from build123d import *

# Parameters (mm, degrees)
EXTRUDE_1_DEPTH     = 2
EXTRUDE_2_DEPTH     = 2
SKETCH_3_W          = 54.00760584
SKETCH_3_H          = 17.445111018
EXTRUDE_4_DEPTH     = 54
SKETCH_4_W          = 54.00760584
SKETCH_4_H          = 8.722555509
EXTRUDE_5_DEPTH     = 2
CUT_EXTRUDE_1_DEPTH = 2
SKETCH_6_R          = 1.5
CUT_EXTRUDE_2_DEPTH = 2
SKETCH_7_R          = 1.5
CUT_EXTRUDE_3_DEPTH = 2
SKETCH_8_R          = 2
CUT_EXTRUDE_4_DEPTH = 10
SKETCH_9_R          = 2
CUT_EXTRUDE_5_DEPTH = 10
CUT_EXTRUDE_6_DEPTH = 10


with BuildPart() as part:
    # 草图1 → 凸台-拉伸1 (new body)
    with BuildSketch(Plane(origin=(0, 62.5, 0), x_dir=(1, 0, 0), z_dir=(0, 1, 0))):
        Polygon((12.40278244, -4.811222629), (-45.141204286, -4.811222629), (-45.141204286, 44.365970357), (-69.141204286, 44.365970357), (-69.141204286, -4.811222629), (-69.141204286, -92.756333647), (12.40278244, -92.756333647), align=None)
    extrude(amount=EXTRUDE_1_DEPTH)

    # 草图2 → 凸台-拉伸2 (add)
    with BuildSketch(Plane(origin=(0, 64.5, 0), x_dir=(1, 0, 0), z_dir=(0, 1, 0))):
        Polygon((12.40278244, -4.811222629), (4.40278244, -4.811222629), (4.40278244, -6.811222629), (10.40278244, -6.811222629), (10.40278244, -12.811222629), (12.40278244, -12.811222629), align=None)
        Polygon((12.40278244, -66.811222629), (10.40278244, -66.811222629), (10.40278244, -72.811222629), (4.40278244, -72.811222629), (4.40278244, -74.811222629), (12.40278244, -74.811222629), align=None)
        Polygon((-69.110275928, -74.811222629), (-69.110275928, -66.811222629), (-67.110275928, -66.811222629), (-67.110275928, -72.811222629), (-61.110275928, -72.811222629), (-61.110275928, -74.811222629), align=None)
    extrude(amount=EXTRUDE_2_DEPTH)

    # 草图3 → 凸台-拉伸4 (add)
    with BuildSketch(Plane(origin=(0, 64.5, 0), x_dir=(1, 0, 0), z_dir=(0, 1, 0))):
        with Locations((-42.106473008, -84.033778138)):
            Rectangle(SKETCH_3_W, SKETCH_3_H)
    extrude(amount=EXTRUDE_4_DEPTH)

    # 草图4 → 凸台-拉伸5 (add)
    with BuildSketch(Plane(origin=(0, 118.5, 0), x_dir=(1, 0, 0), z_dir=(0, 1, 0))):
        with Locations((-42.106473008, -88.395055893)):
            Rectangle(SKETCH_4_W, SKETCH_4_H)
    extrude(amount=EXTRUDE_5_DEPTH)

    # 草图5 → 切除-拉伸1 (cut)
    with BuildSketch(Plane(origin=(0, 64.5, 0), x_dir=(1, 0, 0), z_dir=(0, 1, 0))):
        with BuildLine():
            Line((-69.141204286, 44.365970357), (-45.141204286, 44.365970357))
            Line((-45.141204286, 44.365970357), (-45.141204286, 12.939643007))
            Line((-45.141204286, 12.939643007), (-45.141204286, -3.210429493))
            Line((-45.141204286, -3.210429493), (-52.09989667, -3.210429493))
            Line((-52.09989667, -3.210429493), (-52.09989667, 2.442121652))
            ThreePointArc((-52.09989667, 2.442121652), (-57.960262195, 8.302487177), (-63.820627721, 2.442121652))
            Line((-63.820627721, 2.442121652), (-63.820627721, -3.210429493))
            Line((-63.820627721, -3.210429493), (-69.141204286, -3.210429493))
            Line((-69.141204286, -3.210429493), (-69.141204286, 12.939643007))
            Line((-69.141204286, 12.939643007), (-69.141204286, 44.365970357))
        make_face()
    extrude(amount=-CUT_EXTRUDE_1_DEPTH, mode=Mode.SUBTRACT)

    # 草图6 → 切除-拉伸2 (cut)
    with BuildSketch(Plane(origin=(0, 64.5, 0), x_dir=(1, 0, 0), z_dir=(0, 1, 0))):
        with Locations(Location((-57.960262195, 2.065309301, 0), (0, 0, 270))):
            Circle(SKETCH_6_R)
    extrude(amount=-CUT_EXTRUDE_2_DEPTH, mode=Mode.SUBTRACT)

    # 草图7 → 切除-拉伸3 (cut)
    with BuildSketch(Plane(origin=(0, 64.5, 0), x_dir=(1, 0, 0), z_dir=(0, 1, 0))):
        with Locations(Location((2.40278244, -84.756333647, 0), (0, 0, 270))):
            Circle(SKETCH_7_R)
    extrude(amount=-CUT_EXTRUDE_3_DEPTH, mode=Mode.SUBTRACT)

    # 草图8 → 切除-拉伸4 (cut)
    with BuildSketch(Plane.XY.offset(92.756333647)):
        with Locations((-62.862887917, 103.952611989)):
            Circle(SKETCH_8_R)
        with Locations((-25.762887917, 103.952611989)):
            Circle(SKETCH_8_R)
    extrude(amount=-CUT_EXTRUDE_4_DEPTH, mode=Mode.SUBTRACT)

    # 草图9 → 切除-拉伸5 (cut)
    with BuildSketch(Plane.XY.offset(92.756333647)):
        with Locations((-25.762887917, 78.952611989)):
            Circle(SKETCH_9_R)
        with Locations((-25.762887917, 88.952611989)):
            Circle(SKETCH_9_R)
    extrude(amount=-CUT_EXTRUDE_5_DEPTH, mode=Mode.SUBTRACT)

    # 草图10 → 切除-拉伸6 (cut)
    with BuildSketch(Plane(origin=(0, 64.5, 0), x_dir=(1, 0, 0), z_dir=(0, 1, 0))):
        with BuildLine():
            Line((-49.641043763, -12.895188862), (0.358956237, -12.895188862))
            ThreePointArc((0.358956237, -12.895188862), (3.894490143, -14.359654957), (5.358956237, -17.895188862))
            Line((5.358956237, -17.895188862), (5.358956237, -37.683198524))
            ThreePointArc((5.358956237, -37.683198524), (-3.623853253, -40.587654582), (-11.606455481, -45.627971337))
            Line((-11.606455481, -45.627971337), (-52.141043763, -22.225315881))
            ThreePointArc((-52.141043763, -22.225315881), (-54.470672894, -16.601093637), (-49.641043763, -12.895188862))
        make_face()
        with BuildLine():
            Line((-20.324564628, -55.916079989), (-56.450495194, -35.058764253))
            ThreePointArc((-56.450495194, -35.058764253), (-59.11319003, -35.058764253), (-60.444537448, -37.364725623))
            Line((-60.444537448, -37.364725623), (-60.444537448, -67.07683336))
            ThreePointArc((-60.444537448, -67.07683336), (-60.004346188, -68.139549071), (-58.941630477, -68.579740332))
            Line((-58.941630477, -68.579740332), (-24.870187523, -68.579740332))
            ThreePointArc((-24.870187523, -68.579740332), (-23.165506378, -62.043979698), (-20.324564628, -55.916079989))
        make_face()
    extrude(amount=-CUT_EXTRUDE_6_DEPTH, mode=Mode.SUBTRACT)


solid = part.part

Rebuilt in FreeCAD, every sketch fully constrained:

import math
import FreeCAD as App
import Part
import Sketcher
Q = App.Units.Quantity

doc = App.newDocument("Part")
body = doc.addObject("PartDesign::Body", "Body")

# Sketch on XZ plane
sketch1 = doc.addObject("Sketcher::SketchObject", "Sketch")
body.addObject(sketch1)
sketch1.AttachmentSupport = (doc.XZ_Plane, [""])
sketch1.MapMode = "FlatFace"
sketch1.AttachmentOffset = App.Placement(App.Vector(0, 0, -62.5), App.Rotation())
sketch1.addGeometry([
    Part.LineSegment(App.Vector(12.402782, 4.811223, 0), App.Vector(-45.141204, 4.811223, 0)),  # 0
    Part.LineSegment(App.Vector(-45.141204, 4.811223, 0), App.Vector(-45.141204, -44.36597, 0)),  # 1
    Part.LineSegment(App.Vector(-45.141204, -44.36597, 0), App.Vector(-69.141204, -44.36597, 0)),  # 2
    Part.LineSegment(App.Vector(-69.141204, -44.36597, 0), App.Vector(-69.141204, 92.756334, 0)),  # 3
    Part.LineSegment(App.Vector(-69.141204, 92.756334, 0), App.Vector(12.402782, 92.756334, 0)),  # 4
    Part.LineSegment(App.Vector(12.402782, 92.756334, 0), App.Vector(12.402782, 4.811223, 0)),  # 5
], False)
sketch1.addConstraint([
    Sketcher.Constraint("Coincident", 0, 2, 1, 1),
    Sketcher.Constraint("Coincident", 1, 2, 2, 1),
    Sketcher.Constraint("Coincident", 2, 2, 3, 1),
    Sketcher.Constraint("Coincident", 3, 2, 4, 1),
    Sketcher.Constraint("Coincident", 4, 2, 5, 1),
    Sketcher.Constraint("Coincident", 5, 2, 0, 1),
    Sketcher.Constraint("Horizontal", 0),
    Sketcher.Constraint("Vertical", 1),
    Sketcher.Constraint("Horizontal", 2),
    Sketcher.Constraint("Vertical", 3),
    Sketcher.Constraint("Horizontal", 4),
    Sketcher.Constraint("Vertical", 5),
    Sketcher.Constraint("DistanceX", 2, 2, 2, 1, 24.0),
    Sketcher.Constraint("DistanceY", 5, 2, 5, 1, 87.945111),
    Sketcher.Constraint("DistanceX", 0, 2, 0, 1, 57.543987),
    Sketcher.Constraint("DistanceY", 1, 2, 1, 1, 49.177193),
    Sketcher.Constraint("DistanceY", 1, 2, -1, 1, 44.36597),
    Sketcher.Constraint("DistanceX", 0, 2, -1, 1, 45.141204),
])
pad1 = doc.addObject("PartDesign::Pad", "Pad")
body.addObject(pad1)
pad1.Profile = sketch1
pad1.Length = 2
pad1.Reversed = True

# Sketch on XZ plane
sketch2 = doc.addObject("Sketcher::SketchObject", "Sketch001")
body.addObject(sketch2)
sketch2.AttachmentSupport = (doc.XZ_Plane, [""])
sketch2.MapMode = "FlatFace"
sketch2.AttachmentOffset = App.Placement(App.Vector(0, 0, -64.5), App.Rotation())
sketch2.addGeometry([
    Part.LineSegment(App.Vector(12.402782, 4.811223, 0), App.Vector(4.402782, 4.811223, 0)),  # 0
    Part.LineSegment(App.Vector(4.402782, 4.811223, 0), App.Vector(4.402782, 6.811223, 0)),  # 1
    Part.LineSegment(App.Vector(4.402782, 6.811223, 0), App.Vector(10.402782, 6.811223, 0)),  # 2
    Part.LineSegment(App.Vector(10.402782, 6.811223, 0), App.Vector(10.402782, 12.811223, 0)),  # 3
    Part.LineSegment(App.Vector(10.402782, 12.811223, 0), App.Vector(12.402782, 12.811223, 0)),  # 4
    Part.LineSegment(App.Vector(12.402782, 12.811223, 0), App.Vector(12.402782, 4.811223, 0)),  # 5
    Part.LineSegment(App.Vector(12.402782, 66.811223, 0), App.Vector(10.402782, 66.811223, 0)),  # 6
    Part.LineSegment(App.Vector(10.402782, 66.811223, 0), App.Vector(10.402782, 72.811223, 0)),  # 7
    Part.LineSegment(App.Vector(10.402782, 72.811223, 0), App.Vector(4.402782, 72.811223, 0)),  # 8
    Part.LineSegment(App.Vector(4.402782, 72.811223, 0), App.Vector(4.402782, 74.811223, 0)),  # 9
    Part.LineSegment(App.Vector(4.402782, 74.811223, 0), App.Vector(12.402782, 74.811223, 0)),  # 10
    Part.LineSegment(App.Vector(12.402782, 74.811223, 0), App.Vector(12.402782, 66.811223, 0)),  # 11
    Part.LineSegment(App.Vector(-69.110276, 66.811223, 0), App.Vector(-69.110276, 74.811223, 0)),  # 12
    Part.LineSegment(App.Vector(-69.110276, 74.811223, 0), App.Vector(-61.110276, 74.811223, 0)),  # 13
    Part.LineSegment(App.Vector(-61.110276, 74.811223, 0), App.Vector(-61.110276, 72.811223, 0)),  # 14
    Part.LineSegment(App.Vector(-61.110276, 72.811223, 0), App.Vector(-67.110276, 72.811223, 0)),  # 15
    Part.LineSegment(App.Vector(-67.110276, 72.811223, 0), App.Vector(-67.110276, 66.811223, 0)),  # 16
    Part.LineSegment(App.Vector(-67.110276, 66.811223, 0), App.Vector(-69.110276, 66.811223, 0)),  # 17
], False)
sketch2.addConstraint([
    Sketcher.Constraint("Coincident", 0, 2, 1, 1),
    Sketcher.Constraint("Coincident", 1, 2, 2, 1),
    Sketcher.Constraint("Coincident", 2, 2, 3, 1),
    Sketcher.Constraint("Coincident", 3, 2, 4, 1),
    Sketcher.Constraint("Coincident", 4, 2, 5, 1),
    Sketcher.Constraint("Coincident", 5, 2, 0, 1),
    Sketcher.Constraint("Coincident", 6, 2, 7, 1),
    Sketcher.Constraint("Coincident", 7, 2, 8, 1),
    Sketcher.Constraint("Coincident", 8, 2, 9, 1),
    Sketcher.Constraint("Coincident", 9, 2, 10, 1),
    Sketcher.Constraint("Coincident", 10, 2, 11, 1),
    Sketcher.Constraint("Coincident", 11, 2, 6, 1),
    Sketcher.Constraint("Coincident", 12, 2, 13, 1),
    Sketcher.Constraint("Coincident", 13, 2, 14, 1),
    Sketcher.Constraint("Coincident", 14, 2, 15, 1),
    Sketcher.Constraint("Coincident", 15, 2, 16, 1),
    Sketcher.Constraint("Coincident", 16, 2, 17, 1),
    Sketcher.Constraint("Coincident", 17, 2, 12, 1),
    Sketcher.Constraint("Horizontal", 0),
    Sketcher.Constraint("Vertical", 1),
    Sketcher.Constraint("Horizontal", 2),
    Sketcher.Constraint("Vertical", 3),
    Sketcher.Constraint("Horizontal", 4),
    Sketcher.Constraint("Vertical", 5),
    Sketcher.Constraint("Horizontal", 6),
    Sketcher.Constraint("Vertical", 7),
    Sketcher.Constraint("Horizontal", 8),
    Sketcher.Constraint("Vertical", 9),
    Sketcher.Constraint("Horizontal", 10),
    Sketcher.Constraint("Vertical", 11),
    Sketcher.Constraint("Vertical", 12),
    Sketcher.Constraint("Horizontal", 13),
    Sketcher.Constraint("Vertical", 14),
    Sketcher.Constraint("Horizontal", 15),
    Sketcher.Constraint("Vertical", 16),
    Sketcher.Constraint("Horizontal", 17),
    Sketcher.Constraint("Horizontal", 10, 2, 12, 2),
    Sketcher.Constraint("Horizontal", 8, 2, 14, 2),
    Sketcher.Constraint("Horizontal", 11, 2, 16, 2),
    Sketcher.Constraint("Vertical", 3, 2, 6, 2),
    Sketcher.Constraint("Vertical", 1, 2, 8, 2),
    Sketcher.Constraint("Vertical", 5, 2, 10, 2),
    Sketcher.Constraint("Equal", 10, 13),
    Sketcher.Constraint("Equal", 8, 15),
    Sketcher.Constraint("Equal", 17, 1),
    Sketcher.Constraint("Equal", 15, 3),
    Sketcher.Constraint("Equal", 3, 7),
    Sketcher.Constraint("Equal", 1, 9),
    Sketcher.Constraint("DistanceX", 0, 2, 0, 1, 8.0),
    Sketcher.Constraint("DistanceX", 2, 1, 2, 2, 6.0),
    Sketcher.Constraint("DistanceY", 3, 2, 6, 2, 54.0),
    Sketcher.Constraint("DistanceX", 12, 2, 9, 2, 73.513058),
    Sketcher.Constraint("DistanceX", -1, 1, 0, 2, 4.402782),
    Sketcher.Constraint("DistanceY", -1, 1, 0, 2, 4.811223),
])
pad2 = doc.addObject("PartDesign::Pad", "Pad001")
body.addObject(pad2)
pad2.Profile = sketch2
pad2.Length = 2
pad2.Reversed = True

# Sketch on XZ plane
sketch3 = doc.addObject("Sketcher::SketchObject", "Sketch002")
body.addObject(sketch3)
sketch3.AttachmentSupport = (doc.XZ_Plane, [""])
sketch3.MapMode = "FlatFace"
sketch3.AttachmentOffset = App.Placement(App.Vector(0, 0, -64.5), App.Rotation())
sketch3.addGeometry([
    Part.LineSegment(App.Vector(-69.110276, 75.311223, 0), App.Vector(-69.110276, 92.756334, 0)),
    Part.LineSegment(App.Vector(-69.110276, 92.756334, 0), App.Vector(-15.10267, 92.756334, 0)),
    Part.LineSegment(App.Vector(-15.10267, 92.756334, 0), App.Vector(-15.10267, 75.311223, 0)),
    Part.LineSegment(App.Vector(-15.10267, 75.311223, 0), App.Vector(-69.110276, 75.311223, 0)),
], False)
sketch3.addConstraint([
    Sketcher.Constraint("Coincident", 0, 2, 1, 1),
    Sketcher.Constraint("Coincident", 1, 2, 2, 1),
    Sketcher.Constraint("Coincident", 2, 2, 3, 1),
    Sketcher.Constraint("Coincident", 3, 2, 0, 1),
    Sketcher.Constraint("Vertical", 0),
    Sketcher.Constraint("Horizontal", 1),
    Sketcher.Constraint("Vertical", 2),
    Sketcher.Constraint("Horizontal", 3),
    Sketcher.Constraint("DistanceY", 0, 1, 0, 2, 17.445111),
    Sketcher.Constraint("DistanceX", 1, 1, 1, 2, 54.007606),
    Sketcher.Constraint("DistanceX", 1, 2, -1, 1, 15.10267),
    Sketcher.Constraint("DistanceY", -1, 1, 0, 2, 92.756334),
])
pad3 = doc.addObject("PartDesign::Pad", "Pad002")
body.addObject(pad3)
pad3.Profile = sketch3
pad3.Length = 54
pad3.Reversed = True

# Sketch on XZ plane
sketch4 = doc.addObject("Sketcher::SketchObject", "Sketch003")
body.addObject(sketch4)
sketch4.AttachmentSupport = (doc.XZ_Plane, [""])
sketch4.MapMode = "FlatFace"
sketch4.AttachmentOffset = App.Placement(App.Vector(0, 0, -118.5), App.Rotation())
sketch4.addGeometry([
    Part.LineSegment(App.Vector(-69.110276, 84.033778, 0), App.Vector(-69.110276, 92.756334, 0)),
    Part.LineSegment(App.Vector(-69.110276, 92.756334, 0), App.Vector(-15.10267, 92.756334, 0)),
    Part.LineSegment(App.Vector(-15.10267, 92.756334, 0), App.Vector(-15.10267, 84.033778, 0)),
    Part.LineSegment(App.Vector(-15.10267, 84.033778, 0), App.Vector(-69.110276, 84.033778, 0)),
], False)
sketch4.addConstraint([
    Sketcher.Constraint("Coincident", 0, 2, 1, 1),
    Sketcher.Constraint("Coincident", 1, 2, 2, 1),
    Sketcher.Constraint("Coincident", 2, 2, 3, 1),
    Sketcher.Constraint("Coincident", 3, 2, 0, 1),
    Sketcher.Constraint("Vertical", 0),
    Sketcher.Constraint("Horizontal", 1),
    Sketcher.Constraint("Vertical", 2),
    Sketcher.Constraint("Horizontal", 3),
    Sketcher.Constraint("DistanceX", 1, 1, 1, 2, 54.007606),
    Sketcher.Constraint("DistanceY", 0, 1, 0, 2, 8.722556),
    Sketcher.Constraint("DistanceX", 1, 2, -1, 1, 15.10267),
    Sketcher.Constraint("DistanceY", -1, 1, 2, 2, 84.033778),
])
pad4 = doc.addObject("PartDesign::Pad", "Pad003")
body.addObject(pad4)
pad4.Profile = sketch4
pad4.Length = 2
pad4.Reversed = True

# Sketch on XZ plane
sketch5 = doc.addObject("Sketcher::SketchObject", "Sketch004")
body.addObject(sketch5)
sketch5.AttachmentSupport = (doc.XZ_Plane, [""])
sketch5.MapMode = "FlatFace"
sketch5.AttachmentOffset = App.Placement(App.Vector(0, 0, -64.5), App.Rotation())
sketch5.addGeometry([
    Part.LineSegment(App.Vector(-45.141204, -44.36597, 0), App.Vector(-69.141204, -44.36597, 0)),  # 0
    Part.LineSegment(App.Vector(-69.141204, -44.36597, 0), App.Vector(-69.141204, 3.210429, 0)),  # 1
    Part.LineSegment(App.Vector(-69.141204, 3.210429, 0), App.Vector(-63.820628, 3.210429, 0)),  # 2
    Part.LineSegment(App.Vector(-63.820628, 3.210429, 0), App.Vector(-63.820628, -2.442122, 0)),  # 3
    Part.ArcOfCircle(Part.Circle(App.Vector(-57.960262, -2.442122, 0), App.Vector(0, 0, 1), 5.860366), math.radians(-180), math.radians(0)),  # 4
    Part.LineSegment(App.Vector(-52.099897, -2.442122, 0), App.Vector(-52.099897, 3.210429, 0)),  # 5
    Part.LineSegment(App.Vector(-52.099897, 3.210429, 0), App.Vector(-45.141204, 3.210429, 0)),  # 6
    Part.LineSegment(App.Vector(-45.141204, 3.210429, 0), App.Vector(-45.141204, -44.36597, 0)),  # 7
], False)
sketch5.addConstraint([
    Sketcher.Constraint("Coincident", 0, 2, 1, 1),
    Sketcher.Constraint("Coincident", 1, 2, 2, 1),
    Sketcher.Constraint("Coincident", 2, 2, 3, 1),
    Sketcher.Constraint("Tangent", 3, 2, 4, 1),
    Sketcher.Constraint("Tangent", 4, 2, 5, 1),
    Sketcher.Constraint("Coincident", 5, 2, 6, 1),
    Sketcher.Constraint("Coincident", 6, 2, 7, 1),
    Sketcher.Constraint("Coincident", 7, 2, 0, 1),
    Sketcher.Constraint("Horizontal", 0),
    Sketcher.Constraint("Vertical", 1),
    Sketcher.Constraint("Horizontal", 2),
    Sketcher.Constraint("Vertical", 3),
    Sketcher.Constraint("Vertical", 5),
    Sketcher.Constraint("Horizontal", 6),
    Sketcher.Constraint("Vertical", 7),
    Sketcher.Constraint("Horizontal", 2, 2, 5, 2),
    Sketcher.Constraint("DistanceX", 0, 2, 0, 1, 24.0),
    Sketcher.Constraint("DistanceY", 1, 1, 1, 2, 47.5764),
    Sketcher.Constraint("Radius", 4, 5.860366),
    Sketcher.Constraint("DistanceY", 3, 2, 3, 1, 5.652551),
    Sketcher.Constraint("DistanceX", 2, 1, 2, 2, 5.320577),
    Sketcher.Constraint("DistanceY", 4, 3, -1, 1, 2.442122),
    Sketcher.Constraint("DistanceX", 4, 3, -1, 1, 57.960262),
])
pocket1 = doc.addObject("PartDesign::Pocket", "Pocket")
body.addObject(pocket1)
pocket1.Profile = sketch5
pocket1.Length = 2
pocket1.Reversed = True

# Sketch on XZ plane
sketch6 = doc.addObject("Sketcher::SketchObject", "Sketch005")
body.addObject(sketch6)
sketch6.AttachmentSupport = (doc.XZ_Plane, [""])
sketch6.MapMode = "FlatFace"
sketch6.AttachmentOffset = App.Placement(App.Vector(0, 0, -64.5), App.Rotation())
sketch6.addGeometry(Part.Circle(App.Vector(-57.960262, -2.065309, 0), App.Vector(0, 0, 1), 1.5), False)
sketch6.addConstraint([
    Sketcher.Constraint("Diameter", 0, 3.0),
    Sketcher.Constraint("DistanceY", 0, 3, -1, 1, 2.065309),
    Sketcher.Constraint("DistanceX", 0, 3, -1, 1, 57.960262),
])
pocket2 = doc.addObject("PartDesign::Pocket", "Pocket001")
body.addObject(pocket2)
pocket2.Profile = sketch6
pocket2.Length = 2
pocket2.Reversed = True

# Sketch on XZ plane
sketch7 = doc.addObject("Sketcher::SketchObject", "Sketch006")
body.addObject(sketch7)
sketch7.AttachmentSupport = (doc.XZ_Plane, [""])
sketch7.MapMode = "FlatFace"
sketch7.AttachmentOffset = App.Placement(App.Vector(0, 0, -64.5), App.Rotation())
sketch7.addGeometry(Part.Circle(App.Vector(2.402782, 84.756334, 0), App.Vector(0, 0, 1), 1.5), False)
sketch7.addConstraint([
    Sketcher.Constraint("Diameter", 0, 3.0),
    Sketcher.Constraint("DistanceX", -1, 1, 0, 3, 2.402782),
    Sketcher.Constraint("DistanceY", -1, 1, 0, 3, 84.756334),
])
pocket3 = doc.addObject("PartDesign::Pocket", "Pocket002")
body.addObject(pocket3)
pocket3.Profile = sketch7
pocket3.Length = 2
pocket3.Reversed = True

# Sketch on XY plane
sketch8 = doc.addObject("Sketcher::SketchObject", "Sketch007")
body.addObject(sketch8)
sketch8.AttachmentSupport = (doc.XY_Plane, [""])
sketch8.MapMode = "FlatFace"
sketch8.AttachmentOffset = App.Placement(App.Vector(0, 0, 92.756334), App.Rotation())
sketch8.addGeometry([
    Part.Circle(App.Vector(-62.862888, 103.952612, 0), App.Vector(0, 0, 1), 2),
    Part.Circle(App.Vector(-25.762888, 103.952612, 0), App.Vector(0, 0, 1), 2),
], False)
sketch8.addConstraint([
    Sketcher.Constraint("Equal", 0, 1),
    Sketcher.Constraint("Horizontal", 0, 3, 1, 3),
    Sketcher.Constraint("Diameter", 0, 4.0),
    Sketcher.Constraint("DistanceX", 0, 3, 1, 3, 37.1),
    Sketcher.Constraint("DistanceY", -1, 1, 0, 3, 103.952612),
    Sketcher.Constraint("DistanceX", 0, 3, -1, 1, 62.862888),
])
pocket4 = doc.addObject("PartDesign::Pocket", "Pocket003")
body.addObject(pocket4)
pocket4.Profile = sketch8
pocket4.Length = 10

# Sketch on XY plane
sketch9 = doc.addObject("Sketcher::SketchObject", "Sketch008")
body.addObject(sketch9)
sketch9.AttachmentSupport = (doc.XY_Plane, [""])
sketch9.MapMode = "FlatFace"
sketch9.AttachmentOffset = App.Placement(App.Vector(0, 0, 92.756334), App.Rotation())
sketch9.addGeometry([
    Part.Circle(App.Vector(-25.762888, 78.952612, 0), App.Vector(0, 0, 1), 2),
    Part.Circle(App.Vector(-25.762888, 88.952612, 0), App.Vector(0, 0, 1), 2),
], False)
sketch9.addConstraint([
    Sketcher.Constraint("Equal", 0, 1),
    Sketcher.Constraint("Vertical", 0, 3, 1, 3),
    Sketcher.Constraint("Diameter", 0, 4.0),
    Sketcher.Constraint("DistanceY", 0, 3, 1, 3, 10.0),
    Sketcher.Constraint("DistanceY", -1, 1, 0, 3, 78.952612),
    Sketcher.Constraint("DistanceX", 0, 3, -1, 1, 25.762888),
])
pocket5 = doc.addObject("PartDesign::Pocket", "Pocket004")
body.addObject(pocket5)
pocket5.Profile = sketch9
pocket5.Length = 10

# Sketch on XZ plane
sketch10 = doc.addObject("Sketcher::SketchObject", "Sketch009")
body.addObject(sketch10)
sketch10.AttachmentSupport = (doc.XZ_Plane, [""])
sketch10.MapMode = "FlatFace"
sketch10.AttachmentOffset = App.Placement(App.Vector(0, 0, -64.5), App.Rotation())
sketch10.addGeometry([
    Part.LineSegment(App.Vector(0.358956, 12.895189, 0), App.Vector(-49.641044, 12.895189, 0)),  # 0
    Part.ArcOfCircle(Part.Circle(App.Vector(-49.641044, 17.895189, 0), App.Vector(0, 0, 1), 5), math.radians(120), math.radians(270)),  # 1
    Part.LineSegment(App.Vector(-52.141044, 22.225316, 0), App.Vector(-11.606455, 45.627971, 0)),  # 2
    Part.ArcOfCircle(Part.Circle(App.Vector(12.402782, 74.811223, 0), App.Vector(0, 0, 1), 37.790285), math.radians(-129.444339), math.radians(-100.74233)),  # 3
    Part.LineSegment(App.Vector(5.358956, 37.683199, 0), App.Vector(5.358956, 17.895189, 0)),  # 4
    Part.ArcOfCircle(Part.Circle(App.Vector(0.358956, 17.895189, 0), App.Vector(0, 0, 1), 5), math.radians(-90), math.radians(0)),  # 5
    Part.LineSegment(App.Vector(-20.324565, 55.91608, 0), App.Vector(-56.450495, 35.058764, 0)),  # 6
    Part.ArcOfCircle(Part.Circle(App.Vector(-57.781843, 37.364726, 0), App.Vector(0, 0, 1), 2.662695), math.radians(-180), math.radians(-60)),  # 7
    Part.LineSegment(App.Vector(-60.444537, 37.364726, 0), App.Vector(-60.444537, 67.076833, 0)),  # 8
    Part.ArcOfCircle(Part.Circle(App.Vector(-58.94163, 67.076833, 0), App.Vector(0, 0, 1), 1.502907), math.radians(90), math.radians(180)),  # 9
    Part.LineSegment(App.Vector(-58.94163, 68.57974, 0), App.Vector(-24.870188, 68.57974, 0)),  # 10
    Part.ArcOfCircle(Part.Circle(App.Vector(12.402782, 74.811223, 0), App.Vector(0, 0, 1), 37.790285), math.radians(-170.508783), math.radians(-150)),  # 11
], False)
sketch10.addConstraint([
    Sketcher.Constraint("Tangent", 0, 2, 1, 2),
    Sketcher.Constraint("Tangent", 1, 1, 2, 1),
    Sketcher.Constraint("Coincident", 2, 2, 3, 1),
    Sketcher.Constraint("Coincident", 3, 2, 4, 1),
    Sketcher.Constraint("Tangent", 4, 2, 5, 2),
    Sketcher.Constraint("Tangent", 5, 1, 0, 1),
    Sketcher.Constraint("Tangent", 6, 2, 7, 2),
    Sketcher.Constraint("Tangent", 7, 1, 8, 1),
    Sketcher.Constraint("Tangent", 8, 2, 9, 2),
    Sketcher.Constraint("Tangent", 9, 1, 10, 1),
    Sketcher.Constraint("Coincident", 10, 2, 11, 1),
    Sketcher.Constraint("Coincident", 11, 2, 6, 1),
    Sketcher.Constraint("Horizontal", 0),
    Sketcher.Constraint("Vertical", 4),
    Sketcher.Constraint("Vertical", 8),
    Sketcher.Constraint("Horizontal", 10),
    Sketcher.Constraint("Coincident", 11, 3, 3, 3),
    Sketcher.Constraint("Equal", 1, 5),
    Sketcher.Constraint("Equal", 3, 11),
    Sketcher.Constraint("Parallel", 2, 6),
    Sketcher.Constraint("Radius", 1, 5.0),
    Sketcher.Constraint("DistanceX", 0, 2, 0, 1, 50.0),
    Sketcher.Constraint("Angle", 2, Q("30 deg")),
    Sketcher.Constraint("Radius", 3, 37.790285),
    Sketcher.Constraint("Radius", 7, 2.662695),
    Sketcher.Constraint("Radius", 9, 1.502907),
    Sketcher.Constraint("DistanceY", 4, 2, 4, 1, 19.78801),
    Sketcher.Constraint("DistanceY", -1, 1, 3, 2, 37.683199),
    Sketcher.Constraint("DistanceX", 7, 3, 1, 3, 8.140799),
    Sketcher.Constraint("Distance", 2, 46.805311),
    Sketcher.Constraint("Distance", 6, 41.714631),
    Sketcher.Constraint("DistanceX", 10, 1, 10, 2, 34.071443),
    Sketcher.Constraint("DistanceX", 9, 3, -1, 1, 58.94163),
])
pocket6 = doc.addObject("PartDesign::Pocket", "Pocket005")
body.addObject(pocket6)
pocket6.Profile = sketch10
pocket6.Length = 10
pocket6.Reversed = True

doc.recompute()
